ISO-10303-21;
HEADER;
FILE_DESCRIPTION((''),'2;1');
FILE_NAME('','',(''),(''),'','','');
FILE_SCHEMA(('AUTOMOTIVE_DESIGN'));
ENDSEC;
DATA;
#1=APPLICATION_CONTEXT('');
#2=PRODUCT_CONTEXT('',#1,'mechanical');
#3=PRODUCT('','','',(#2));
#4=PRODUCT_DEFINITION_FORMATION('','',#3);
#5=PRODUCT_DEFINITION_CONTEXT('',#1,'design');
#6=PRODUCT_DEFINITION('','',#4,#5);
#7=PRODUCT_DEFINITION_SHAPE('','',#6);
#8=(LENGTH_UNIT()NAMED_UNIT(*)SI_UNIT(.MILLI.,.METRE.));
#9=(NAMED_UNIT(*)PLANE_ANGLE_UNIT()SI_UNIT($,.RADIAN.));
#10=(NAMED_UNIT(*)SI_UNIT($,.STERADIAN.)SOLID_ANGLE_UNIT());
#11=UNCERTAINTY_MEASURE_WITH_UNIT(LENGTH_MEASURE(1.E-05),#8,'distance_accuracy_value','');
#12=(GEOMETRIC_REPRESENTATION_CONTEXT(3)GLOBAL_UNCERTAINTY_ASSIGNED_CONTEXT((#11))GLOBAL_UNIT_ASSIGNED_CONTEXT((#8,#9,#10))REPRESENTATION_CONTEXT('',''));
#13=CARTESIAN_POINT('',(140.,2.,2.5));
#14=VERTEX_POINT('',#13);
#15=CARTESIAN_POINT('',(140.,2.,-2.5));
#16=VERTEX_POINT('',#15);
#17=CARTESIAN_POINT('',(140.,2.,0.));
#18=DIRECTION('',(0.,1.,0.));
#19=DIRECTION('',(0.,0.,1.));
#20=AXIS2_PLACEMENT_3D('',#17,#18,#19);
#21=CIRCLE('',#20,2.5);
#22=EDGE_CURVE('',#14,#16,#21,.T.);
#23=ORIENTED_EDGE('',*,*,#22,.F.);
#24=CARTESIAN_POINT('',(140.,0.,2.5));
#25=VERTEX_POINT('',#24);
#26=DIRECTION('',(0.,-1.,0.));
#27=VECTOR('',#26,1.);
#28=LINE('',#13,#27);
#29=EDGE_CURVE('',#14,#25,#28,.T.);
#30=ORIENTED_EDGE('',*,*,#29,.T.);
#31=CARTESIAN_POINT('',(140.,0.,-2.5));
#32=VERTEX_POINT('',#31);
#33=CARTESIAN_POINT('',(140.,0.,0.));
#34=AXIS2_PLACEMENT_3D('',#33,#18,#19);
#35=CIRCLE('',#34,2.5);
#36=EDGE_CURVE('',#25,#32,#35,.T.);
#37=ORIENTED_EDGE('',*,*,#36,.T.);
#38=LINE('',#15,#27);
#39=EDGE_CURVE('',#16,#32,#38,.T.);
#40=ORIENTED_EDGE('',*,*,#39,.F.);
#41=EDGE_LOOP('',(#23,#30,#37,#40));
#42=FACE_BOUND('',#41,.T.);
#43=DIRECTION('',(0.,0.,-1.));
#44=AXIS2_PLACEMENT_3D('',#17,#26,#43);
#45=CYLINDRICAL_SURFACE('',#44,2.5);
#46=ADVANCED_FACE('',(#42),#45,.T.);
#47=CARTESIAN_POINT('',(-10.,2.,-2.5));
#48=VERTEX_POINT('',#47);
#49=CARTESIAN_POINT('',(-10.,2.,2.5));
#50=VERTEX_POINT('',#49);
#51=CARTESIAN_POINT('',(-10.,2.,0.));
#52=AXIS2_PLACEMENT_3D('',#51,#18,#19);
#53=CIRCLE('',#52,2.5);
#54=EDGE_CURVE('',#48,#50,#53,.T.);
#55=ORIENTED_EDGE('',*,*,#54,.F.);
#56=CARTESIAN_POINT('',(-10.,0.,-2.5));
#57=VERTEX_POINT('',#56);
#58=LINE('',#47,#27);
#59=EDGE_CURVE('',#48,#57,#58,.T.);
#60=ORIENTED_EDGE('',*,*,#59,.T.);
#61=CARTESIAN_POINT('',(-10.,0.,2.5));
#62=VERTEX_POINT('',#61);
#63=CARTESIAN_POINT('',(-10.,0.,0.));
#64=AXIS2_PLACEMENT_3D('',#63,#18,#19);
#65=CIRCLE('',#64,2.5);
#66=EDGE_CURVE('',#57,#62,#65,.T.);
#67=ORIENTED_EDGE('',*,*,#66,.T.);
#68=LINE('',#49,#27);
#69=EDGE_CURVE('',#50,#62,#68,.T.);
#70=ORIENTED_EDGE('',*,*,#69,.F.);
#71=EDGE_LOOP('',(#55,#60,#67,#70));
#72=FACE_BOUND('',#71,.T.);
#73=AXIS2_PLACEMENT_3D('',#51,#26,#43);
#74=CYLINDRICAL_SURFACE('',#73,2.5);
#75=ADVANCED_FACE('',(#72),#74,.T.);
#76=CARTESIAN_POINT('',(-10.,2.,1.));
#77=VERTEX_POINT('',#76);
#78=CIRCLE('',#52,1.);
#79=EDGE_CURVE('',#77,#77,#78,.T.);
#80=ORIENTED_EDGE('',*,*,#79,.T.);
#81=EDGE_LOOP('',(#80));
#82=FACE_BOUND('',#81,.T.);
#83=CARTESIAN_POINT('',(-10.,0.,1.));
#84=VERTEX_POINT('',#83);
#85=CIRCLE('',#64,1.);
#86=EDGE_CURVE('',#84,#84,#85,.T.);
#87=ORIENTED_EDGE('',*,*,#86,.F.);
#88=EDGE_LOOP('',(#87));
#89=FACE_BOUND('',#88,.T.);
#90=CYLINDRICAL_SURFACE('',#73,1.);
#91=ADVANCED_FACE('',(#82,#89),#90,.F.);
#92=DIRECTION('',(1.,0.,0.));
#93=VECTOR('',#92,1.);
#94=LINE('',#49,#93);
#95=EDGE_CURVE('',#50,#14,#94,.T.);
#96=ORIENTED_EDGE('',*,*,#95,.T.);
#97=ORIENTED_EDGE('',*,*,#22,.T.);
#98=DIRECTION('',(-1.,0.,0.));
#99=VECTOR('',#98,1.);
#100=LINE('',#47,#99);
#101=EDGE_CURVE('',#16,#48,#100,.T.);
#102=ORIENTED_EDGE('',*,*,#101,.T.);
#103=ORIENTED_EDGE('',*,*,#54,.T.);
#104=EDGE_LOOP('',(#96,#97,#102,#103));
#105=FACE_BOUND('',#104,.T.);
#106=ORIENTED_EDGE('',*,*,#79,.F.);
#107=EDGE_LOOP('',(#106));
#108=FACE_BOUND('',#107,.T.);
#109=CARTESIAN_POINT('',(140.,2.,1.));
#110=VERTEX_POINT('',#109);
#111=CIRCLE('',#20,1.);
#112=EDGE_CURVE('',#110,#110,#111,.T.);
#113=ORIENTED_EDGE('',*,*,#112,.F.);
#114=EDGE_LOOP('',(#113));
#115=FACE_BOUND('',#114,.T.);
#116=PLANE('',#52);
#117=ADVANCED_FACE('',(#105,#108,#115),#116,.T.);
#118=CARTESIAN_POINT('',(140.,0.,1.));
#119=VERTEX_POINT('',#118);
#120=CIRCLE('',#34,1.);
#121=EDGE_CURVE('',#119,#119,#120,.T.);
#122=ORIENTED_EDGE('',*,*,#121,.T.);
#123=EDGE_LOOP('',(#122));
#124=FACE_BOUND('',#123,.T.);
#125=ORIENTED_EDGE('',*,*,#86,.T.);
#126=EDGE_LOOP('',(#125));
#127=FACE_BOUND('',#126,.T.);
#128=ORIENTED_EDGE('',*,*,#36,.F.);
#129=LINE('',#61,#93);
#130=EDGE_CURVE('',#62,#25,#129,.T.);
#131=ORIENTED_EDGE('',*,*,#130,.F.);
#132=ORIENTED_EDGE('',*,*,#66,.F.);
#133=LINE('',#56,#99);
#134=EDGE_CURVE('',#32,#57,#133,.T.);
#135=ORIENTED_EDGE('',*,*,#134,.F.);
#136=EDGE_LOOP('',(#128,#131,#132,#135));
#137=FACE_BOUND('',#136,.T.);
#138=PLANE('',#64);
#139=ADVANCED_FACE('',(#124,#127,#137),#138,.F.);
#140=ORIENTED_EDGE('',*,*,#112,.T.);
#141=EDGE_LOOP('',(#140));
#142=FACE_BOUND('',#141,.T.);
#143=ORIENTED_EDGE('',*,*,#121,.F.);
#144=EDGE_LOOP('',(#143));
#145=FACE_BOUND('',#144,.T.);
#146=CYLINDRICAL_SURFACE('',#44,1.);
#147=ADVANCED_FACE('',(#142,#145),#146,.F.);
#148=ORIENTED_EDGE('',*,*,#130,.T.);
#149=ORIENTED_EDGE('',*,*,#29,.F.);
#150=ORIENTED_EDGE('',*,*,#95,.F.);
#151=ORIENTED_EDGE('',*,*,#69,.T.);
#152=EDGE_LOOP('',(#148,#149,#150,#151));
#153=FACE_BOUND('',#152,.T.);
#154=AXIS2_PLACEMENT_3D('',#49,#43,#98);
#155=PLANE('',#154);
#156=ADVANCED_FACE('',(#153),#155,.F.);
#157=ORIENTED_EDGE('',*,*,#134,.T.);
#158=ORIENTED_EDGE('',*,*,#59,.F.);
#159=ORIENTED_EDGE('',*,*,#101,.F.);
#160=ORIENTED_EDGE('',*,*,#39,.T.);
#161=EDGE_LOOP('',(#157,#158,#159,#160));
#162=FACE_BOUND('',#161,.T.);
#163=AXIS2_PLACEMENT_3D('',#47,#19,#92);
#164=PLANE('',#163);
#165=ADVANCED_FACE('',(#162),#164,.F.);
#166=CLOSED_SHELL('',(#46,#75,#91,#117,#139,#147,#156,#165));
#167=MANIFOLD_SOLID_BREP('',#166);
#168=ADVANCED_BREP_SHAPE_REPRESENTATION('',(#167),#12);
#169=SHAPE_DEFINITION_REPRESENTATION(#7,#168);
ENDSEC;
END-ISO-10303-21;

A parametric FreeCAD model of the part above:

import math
import FreeCAD as App
import Part
import Sketcher

doc = App.newDocument("Part")
body = doc.addObject("PartDesign::Body", "Body")

# Sketch on XZ plane
sketch1 = body.newObject("Sketcher::SketchObject", "Sketch")
sketch1.AttachmentSupport = (doc.getObject("XZ_Plane"), [""])
sketch1.MapMode = "FlatFace"
sketch1.addGeometry([
    Part.LineSegment(App.Vector(140, -2.5, 0), App.Vector(-10, -2.5, 0)),  # 0
    Part.ArcOfCircle(Part.Circle(App.Vector(-10, 0, 0), App.Vector(0, 0, 1), 2.5), math.radians(90), math.radians(270)),  # 1
    Part.LineSegment(App.Vector(-10, 2.5, 0), App.Vector(140, 2.5, 0)),  # 2
    Part.ArcOfCircle(Part.Circle(App.Vector(140, 0, 0), App.Vector(0, 0, 1), 2.5), math.radians(-90), math.radians(90)),  # 3
    Part.Circle(App.Vector(140, 0, 0), App.Vector(0, 0, 1), 1),  # 4
    Part.Circle(App.Vector(-10, 0, 0), App.Vector(0, 0, 1), 1),  # 5
], False)
sketch1.addConstraint([
    Sketcher.Constraint("Tangent", 0, 2, 1, 2),
    Sketcher.Constraint("Tangent", 1, 1, 2, 1),
    Sketcher.Constraint("Tangent", 2, 2, 3, 2),
    Sketcher.Constraint("Tangent", 3, 1, 0, 1),
    Sketcher.Constraint("Horizontal", 0),
    Sketcher.Constraint("Horizontal", 2),
    Sketcher.Constraint("Coincident", 4, 3, 3, 3),
    Sketcher.Constraint("Coincident", 5, 3, 1, 3),
    Sketcher.Constraint("Equal", 4, 5),
    Sketcher.Constraint("PointOnObject", 1, 3, -1),
    Sketcher.Constraint("Diameter", 4, 2.0),
    Sketcher.Constraint("Radius", 1, 2.5),
    Sketcher.Constraint("DistanceX", 0, 2, 0, 1, 150.0),
    Sketcher.Constraint("DistanceX", 1, 3, -1, 1, 10.0),
])
pad1 = body.newObject("PartDesign::Pad", "Pad")
pad1.Profile = sketch1
pad1.Length = 2
pad1.Reversed = True

doc.recompute()
